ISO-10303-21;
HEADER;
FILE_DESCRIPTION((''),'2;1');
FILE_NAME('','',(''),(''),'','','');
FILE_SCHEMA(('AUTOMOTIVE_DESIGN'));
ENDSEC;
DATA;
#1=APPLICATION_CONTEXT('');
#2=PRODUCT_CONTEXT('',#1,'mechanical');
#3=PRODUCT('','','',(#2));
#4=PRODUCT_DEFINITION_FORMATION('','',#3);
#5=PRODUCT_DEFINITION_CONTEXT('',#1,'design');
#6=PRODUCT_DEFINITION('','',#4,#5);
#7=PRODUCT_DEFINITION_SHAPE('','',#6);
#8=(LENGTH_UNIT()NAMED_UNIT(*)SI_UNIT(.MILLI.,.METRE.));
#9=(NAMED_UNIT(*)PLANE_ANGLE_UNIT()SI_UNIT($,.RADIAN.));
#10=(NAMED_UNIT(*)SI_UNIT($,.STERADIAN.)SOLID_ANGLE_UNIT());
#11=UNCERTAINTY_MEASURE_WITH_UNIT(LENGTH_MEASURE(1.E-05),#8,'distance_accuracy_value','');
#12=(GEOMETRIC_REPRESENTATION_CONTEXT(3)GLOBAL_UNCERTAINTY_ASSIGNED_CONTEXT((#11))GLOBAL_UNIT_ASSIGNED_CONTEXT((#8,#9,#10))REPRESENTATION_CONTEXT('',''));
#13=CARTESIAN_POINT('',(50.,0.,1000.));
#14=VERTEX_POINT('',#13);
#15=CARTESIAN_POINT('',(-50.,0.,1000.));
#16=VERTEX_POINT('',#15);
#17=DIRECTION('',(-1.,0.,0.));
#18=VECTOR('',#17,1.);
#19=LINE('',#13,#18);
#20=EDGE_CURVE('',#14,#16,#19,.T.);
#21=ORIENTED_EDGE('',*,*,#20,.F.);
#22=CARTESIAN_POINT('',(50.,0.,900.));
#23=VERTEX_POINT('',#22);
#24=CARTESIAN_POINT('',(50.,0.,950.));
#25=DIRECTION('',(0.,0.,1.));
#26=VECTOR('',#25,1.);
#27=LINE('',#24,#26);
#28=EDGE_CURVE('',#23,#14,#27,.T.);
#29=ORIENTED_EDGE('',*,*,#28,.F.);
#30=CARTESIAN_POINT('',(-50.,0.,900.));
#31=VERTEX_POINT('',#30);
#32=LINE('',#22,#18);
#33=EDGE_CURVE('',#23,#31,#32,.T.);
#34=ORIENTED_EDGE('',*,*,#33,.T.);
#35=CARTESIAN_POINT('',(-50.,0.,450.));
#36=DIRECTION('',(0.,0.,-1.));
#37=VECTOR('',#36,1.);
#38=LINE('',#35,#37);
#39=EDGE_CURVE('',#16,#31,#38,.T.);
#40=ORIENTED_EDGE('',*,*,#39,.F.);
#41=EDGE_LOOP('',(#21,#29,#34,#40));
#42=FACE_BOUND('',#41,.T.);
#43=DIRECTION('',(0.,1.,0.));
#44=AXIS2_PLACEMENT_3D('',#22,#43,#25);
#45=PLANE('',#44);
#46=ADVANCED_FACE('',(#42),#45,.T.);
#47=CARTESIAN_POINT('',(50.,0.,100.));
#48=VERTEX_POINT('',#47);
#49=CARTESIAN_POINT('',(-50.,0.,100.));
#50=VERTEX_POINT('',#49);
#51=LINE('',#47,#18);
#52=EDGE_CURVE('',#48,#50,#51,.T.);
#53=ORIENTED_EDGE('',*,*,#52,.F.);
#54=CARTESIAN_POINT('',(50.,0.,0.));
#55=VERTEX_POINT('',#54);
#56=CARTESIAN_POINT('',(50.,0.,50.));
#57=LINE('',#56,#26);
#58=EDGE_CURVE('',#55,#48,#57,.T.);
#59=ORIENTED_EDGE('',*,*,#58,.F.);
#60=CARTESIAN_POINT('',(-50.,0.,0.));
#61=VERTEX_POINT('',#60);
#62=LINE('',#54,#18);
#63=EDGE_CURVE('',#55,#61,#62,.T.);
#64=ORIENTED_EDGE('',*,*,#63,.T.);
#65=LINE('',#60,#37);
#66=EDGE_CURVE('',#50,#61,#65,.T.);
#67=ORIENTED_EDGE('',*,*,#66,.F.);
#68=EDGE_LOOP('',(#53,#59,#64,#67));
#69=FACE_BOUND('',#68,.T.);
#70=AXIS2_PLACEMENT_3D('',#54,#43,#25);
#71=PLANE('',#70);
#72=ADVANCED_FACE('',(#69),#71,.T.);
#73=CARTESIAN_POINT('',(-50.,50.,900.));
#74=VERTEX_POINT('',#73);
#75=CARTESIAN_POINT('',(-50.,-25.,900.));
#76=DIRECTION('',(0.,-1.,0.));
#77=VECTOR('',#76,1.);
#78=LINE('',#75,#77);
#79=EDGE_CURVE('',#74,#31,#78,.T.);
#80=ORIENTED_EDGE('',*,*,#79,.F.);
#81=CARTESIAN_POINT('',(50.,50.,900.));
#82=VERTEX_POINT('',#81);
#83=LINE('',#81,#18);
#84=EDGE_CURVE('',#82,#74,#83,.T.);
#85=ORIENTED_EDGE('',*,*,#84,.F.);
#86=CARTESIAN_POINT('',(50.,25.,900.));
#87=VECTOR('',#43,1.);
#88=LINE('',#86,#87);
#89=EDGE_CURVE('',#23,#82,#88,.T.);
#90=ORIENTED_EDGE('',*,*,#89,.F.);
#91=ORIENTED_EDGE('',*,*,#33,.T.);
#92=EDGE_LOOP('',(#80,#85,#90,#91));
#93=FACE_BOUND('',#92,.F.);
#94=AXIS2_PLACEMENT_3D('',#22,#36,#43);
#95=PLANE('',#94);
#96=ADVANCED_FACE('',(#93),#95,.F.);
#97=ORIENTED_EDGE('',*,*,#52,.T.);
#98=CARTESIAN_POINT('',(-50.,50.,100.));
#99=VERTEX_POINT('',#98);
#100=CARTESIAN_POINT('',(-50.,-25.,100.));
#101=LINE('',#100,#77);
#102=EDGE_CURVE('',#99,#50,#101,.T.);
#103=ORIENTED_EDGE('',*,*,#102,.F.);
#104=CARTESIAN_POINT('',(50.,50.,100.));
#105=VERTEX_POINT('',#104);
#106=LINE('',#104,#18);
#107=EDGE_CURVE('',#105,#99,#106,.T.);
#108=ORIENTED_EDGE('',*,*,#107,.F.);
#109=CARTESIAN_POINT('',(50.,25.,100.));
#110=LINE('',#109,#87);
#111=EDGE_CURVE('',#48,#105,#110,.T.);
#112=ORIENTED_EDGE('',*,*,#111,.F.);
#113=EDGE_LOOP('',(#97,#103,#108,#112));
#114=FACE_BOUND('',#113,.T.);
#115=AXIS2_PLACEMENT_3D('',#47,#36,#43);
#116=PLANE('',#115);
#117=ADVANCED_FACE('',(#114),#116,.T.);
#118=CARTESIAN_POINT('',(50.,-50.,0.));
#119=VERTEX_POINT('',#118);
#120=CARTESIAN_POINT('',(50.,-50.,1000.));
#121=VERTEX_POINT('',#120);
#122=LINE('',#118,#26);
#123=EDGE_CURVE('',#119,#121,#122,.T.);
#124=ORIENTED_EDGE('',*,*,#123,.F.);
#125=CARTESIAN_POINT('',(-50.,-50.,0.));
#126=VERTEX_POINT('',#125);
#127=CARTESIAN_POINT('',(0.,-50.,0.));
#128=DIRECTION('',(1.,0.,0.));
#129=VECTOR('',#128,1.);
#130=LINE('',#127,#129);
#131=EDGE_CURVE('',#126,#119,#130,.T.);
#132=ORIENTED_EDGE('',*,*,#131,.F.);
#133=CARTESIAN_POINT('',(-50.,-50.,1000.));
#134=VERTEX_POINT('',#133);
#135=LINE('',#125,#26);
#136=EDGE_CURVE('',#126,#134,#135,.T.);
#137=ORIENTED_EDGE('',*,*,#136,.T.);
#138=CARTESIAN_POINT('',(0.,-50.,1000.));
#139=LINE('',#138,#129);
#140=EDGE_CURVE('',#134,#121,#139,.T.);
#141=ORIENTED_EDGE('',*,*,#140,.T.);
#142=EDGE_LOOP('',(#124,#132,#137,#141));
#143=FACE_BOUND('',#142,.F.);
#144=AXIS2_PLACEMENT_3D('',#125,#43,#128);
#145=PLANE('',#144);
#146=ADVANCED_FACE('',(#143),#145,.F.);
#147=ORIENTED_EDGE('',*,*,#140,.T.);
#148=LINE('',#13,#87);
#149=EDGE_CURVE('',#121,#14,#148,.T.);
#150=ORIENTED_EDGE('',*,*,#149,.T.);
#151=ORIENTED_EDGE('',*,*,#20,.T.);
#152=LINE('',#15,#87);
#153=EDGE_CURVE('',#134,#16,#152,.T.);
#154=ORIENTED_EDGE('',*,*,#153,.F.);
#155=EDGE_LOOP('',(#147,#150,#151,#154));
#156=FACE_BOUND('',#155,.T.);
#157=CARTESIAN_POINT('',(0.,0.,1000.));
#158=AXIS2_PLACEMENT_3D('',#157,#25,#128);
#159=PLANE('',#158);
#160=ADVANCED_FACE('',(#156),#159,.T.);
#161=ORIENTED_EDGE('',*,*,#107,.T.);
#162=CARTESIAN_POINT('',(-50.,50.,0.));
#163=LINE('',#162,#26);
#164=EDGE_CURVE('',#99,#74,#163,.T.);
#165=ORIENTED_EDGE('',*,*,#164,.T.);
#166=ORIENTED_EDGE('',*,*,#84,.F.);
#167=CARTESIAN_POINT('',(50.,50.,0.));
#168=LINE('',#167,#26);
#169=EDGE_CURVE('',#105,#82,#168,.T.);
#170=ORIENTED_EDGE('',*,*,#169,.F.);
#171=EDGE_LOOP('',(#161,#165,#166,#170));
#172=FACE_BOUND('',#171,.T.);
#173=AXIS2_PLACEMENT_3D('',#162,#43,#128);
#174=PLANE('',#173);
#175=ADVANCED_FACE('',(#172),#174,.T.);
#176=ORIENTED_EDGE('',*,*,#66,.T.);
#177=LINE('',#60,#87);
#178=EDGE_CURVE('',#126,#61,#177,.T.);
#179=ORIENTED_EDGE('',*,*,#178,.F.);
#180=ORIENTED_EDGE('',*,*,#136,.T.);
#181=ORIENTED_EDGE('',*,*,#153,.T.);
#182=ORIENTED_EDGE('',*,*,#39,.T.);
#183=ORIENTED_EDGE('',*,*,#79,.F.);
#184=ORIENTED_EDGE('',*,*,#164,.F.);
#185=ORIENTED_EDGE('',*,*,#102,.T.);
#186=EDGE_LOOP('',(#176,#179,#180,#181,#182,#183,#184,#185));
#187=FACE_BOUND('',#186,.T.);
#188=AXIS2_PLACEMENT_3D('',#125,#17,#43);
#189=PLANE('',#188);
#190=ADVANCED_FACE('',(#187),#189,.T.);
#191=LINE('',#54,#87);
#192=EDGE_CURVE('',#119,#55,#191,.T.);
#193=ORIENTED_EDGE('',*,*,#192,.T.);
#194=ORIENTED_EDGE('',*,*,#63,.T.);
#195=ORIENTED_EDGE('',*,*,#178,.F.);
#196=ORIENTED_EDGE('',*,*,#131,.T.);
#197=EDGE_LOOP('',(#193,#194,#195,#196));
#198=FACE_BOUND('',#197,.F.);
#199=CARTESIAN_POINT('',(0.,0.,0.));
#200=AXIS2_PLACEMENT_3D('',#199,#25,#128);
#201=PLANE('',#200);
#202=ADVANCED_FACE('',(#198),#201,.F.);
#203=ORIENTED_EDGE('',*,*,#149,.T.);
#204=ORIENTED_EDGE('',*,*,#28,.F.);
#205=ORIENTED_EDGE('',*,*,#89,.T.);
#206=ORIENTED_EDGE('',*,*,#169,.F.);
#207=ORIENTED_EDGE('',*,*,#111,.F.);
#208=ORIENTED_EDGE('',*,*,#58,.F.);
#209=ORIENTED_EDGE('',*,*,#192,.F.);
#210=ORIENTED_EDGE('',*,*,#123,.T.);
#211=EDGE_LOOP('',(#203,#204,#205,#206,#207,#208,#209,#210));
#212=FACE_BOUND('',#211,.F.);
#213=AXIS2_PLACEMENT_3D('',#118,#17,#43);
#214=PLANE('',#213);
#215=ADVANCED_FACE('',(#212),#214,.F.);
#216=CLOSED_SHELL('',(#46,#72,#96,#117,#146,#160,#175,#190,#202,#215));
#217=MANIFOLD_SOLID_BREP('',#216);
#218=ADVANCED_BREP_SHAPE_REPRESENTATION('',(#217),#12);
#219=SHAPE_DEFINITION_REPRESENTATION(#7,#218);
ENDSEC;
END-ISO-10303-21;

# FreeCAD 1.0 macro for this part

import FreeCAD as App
import Part
import Sketcher
from FreeCAD import Vector
Q = App.Units.Quantity


def add_polygon(sketch, points):
    """Adds a closed chain of lines whose ends are joined by coincident constraints."""
    first, n = sketch.GeometryCount, len(points)
    for a, b in zip(points, points[1:] + points[:1]):
        sketch.addGeometry(Part.LineSegment(App.Vector(*a, 0), App.Vector(*b, 0)), False)
    for i in range(n):
        sketch.addConstraint(Sketcher.Constraint("Coincident", first + i, 2, first + (i + 1) % n, 1))

doc = App.newDocument("Part")
params = doc.addObject("Spreadsheet::Sheet", "Params")
for row, (alias, value) in enumerate([
    ("sketch1_width", "100 mm"),
    ("pad1_length", "1000 mm"),
    ("sketch2_width", "50 mm"),
    ("sketch2_height", "100 mm"),
], start=1):
    params.set(f"A{row}", alias)
    params.set(f"B{row}", "=" + value)
    params.setAlias(f"B{row}", alias)

body = doc.addObject("PartDesign::Body", "Body")

# Sketch on XY plane
sketch1 = body.newObject("Sketcher::SketchObject", "Sketch")
sketch1.AttachmentSupport = (doc.getObject("XY_Plane"), [""])
sketch1.MapMode = "FlatFace"
add_polygon(sketch1, [(-50, 50), (-50, -50), (50, -50), (50, 50)])  # lines 0-3
sketch1.addConstraint(Sketcher.Constraint("Vertical", 0))
sketch1.addConstraint(Sketcher.Constraint("Horizontal", 1))
sketch1.addConstraint(Sketcher.Constraint("Vertical", 2))
sketch1.addConstraint(Sketcher.Constraint("Horizontal", 3))
sketch1.addConstraint(Sketcher.Constraint("Symmetric", 0, 2, 2, 2, -1, 1))
sketch1.addConstraint(Sketcher.Constraint("Equal", 3, 0))
sketch1.addConstraint(Sketcher.Constraint("DistanceX", 1, 1, 1, 2, Q("100 mm")))
sketch1.setExpression("Constraints[10]", "Params.sketch1_width")
pad1 = body.newObject("PartDesign::Pad", "Pad")
pad1.Profile = sketch1
pad1.setExpression("Length", "Params.pad1_length")

# Sketch on YZ plane
sketch2 = body.newObject("Sketcher::SketchObject", "Sketch001")
sketch2.AttachmentSupport = (doc.getObject("YZ_Plane"), [""])
sketch2.MapMode = "FlatFace"
sketch2.AttachmentOffset = App.Placement(Vector(0, 0, 50), App.Rotation())
add_polygon(sketch2, [(0, 100), (0, 0), (50, 0), (50, 100)])  # lines 0-3
add_polygon(sketch2, [(0, 1000), (0, 900), (50, 900), (50, 1000)])  # lines 4-7
sketch2.addConstraint(Sketcher.Constraint("Vertical", 0))
sketch2.addConstraint(Sketcher.Constraint("Horizontal", 1))
sketch2.addConstraint(Sketcher.Constraint("Vertical", 2))
sketch2.addConstraint(Sketcher.Constraint("Horizontal", 3))
sketch2.addConstraint(Sketcher.Constraint("Vertical", 4))
sketch2.addConstraint(Sketcher.Constraint("Horizontal", 5))
sketch2.addConstraint(Sketcher.Constraint("Vertical", 6))
sketch2.addConstraint(Sketcher.Constraint("Horizontal", 7))
sketch2.addConstraint(Sketcher.Constraint("Coincident", 0, 2, -1, 1))
sketch2.addConstraint(Sketcher.Constraint("PointOnObject", 4, 2, -2))
sketch2.addConstraint(Sketcher.Constraint("Vertical", 2, 2, 5, 2))
sketch2.addConstraint(Sketcher.Constraint("Equal", 2, 4))
sketch2.addConstraint(Sketcher.Constraint("DistanceX", 1, 1, 1, 2, Q("50 mm")))
sketch2.addConstraint(Sketcher.Constraint("DistanceY", 0, 2, 0, 1, Q("100 mm")))
sketch2.addConstraint(Sketcher.Constraint("DistanceY", -1, 1, 4, 2, Q("900 mm")))
sketch2.setExpression("Constraints[20]", "Params.sketch2_width")
sketch2.setExpression("Constraints[21]", "Params.sketch2_height")
pocket1 = body.newObject("PartDesign::Pocket", "Pocket")
pocket1.Profile = sketch2
pocket1.Type = "ThroughAll"

doc.recompute()
